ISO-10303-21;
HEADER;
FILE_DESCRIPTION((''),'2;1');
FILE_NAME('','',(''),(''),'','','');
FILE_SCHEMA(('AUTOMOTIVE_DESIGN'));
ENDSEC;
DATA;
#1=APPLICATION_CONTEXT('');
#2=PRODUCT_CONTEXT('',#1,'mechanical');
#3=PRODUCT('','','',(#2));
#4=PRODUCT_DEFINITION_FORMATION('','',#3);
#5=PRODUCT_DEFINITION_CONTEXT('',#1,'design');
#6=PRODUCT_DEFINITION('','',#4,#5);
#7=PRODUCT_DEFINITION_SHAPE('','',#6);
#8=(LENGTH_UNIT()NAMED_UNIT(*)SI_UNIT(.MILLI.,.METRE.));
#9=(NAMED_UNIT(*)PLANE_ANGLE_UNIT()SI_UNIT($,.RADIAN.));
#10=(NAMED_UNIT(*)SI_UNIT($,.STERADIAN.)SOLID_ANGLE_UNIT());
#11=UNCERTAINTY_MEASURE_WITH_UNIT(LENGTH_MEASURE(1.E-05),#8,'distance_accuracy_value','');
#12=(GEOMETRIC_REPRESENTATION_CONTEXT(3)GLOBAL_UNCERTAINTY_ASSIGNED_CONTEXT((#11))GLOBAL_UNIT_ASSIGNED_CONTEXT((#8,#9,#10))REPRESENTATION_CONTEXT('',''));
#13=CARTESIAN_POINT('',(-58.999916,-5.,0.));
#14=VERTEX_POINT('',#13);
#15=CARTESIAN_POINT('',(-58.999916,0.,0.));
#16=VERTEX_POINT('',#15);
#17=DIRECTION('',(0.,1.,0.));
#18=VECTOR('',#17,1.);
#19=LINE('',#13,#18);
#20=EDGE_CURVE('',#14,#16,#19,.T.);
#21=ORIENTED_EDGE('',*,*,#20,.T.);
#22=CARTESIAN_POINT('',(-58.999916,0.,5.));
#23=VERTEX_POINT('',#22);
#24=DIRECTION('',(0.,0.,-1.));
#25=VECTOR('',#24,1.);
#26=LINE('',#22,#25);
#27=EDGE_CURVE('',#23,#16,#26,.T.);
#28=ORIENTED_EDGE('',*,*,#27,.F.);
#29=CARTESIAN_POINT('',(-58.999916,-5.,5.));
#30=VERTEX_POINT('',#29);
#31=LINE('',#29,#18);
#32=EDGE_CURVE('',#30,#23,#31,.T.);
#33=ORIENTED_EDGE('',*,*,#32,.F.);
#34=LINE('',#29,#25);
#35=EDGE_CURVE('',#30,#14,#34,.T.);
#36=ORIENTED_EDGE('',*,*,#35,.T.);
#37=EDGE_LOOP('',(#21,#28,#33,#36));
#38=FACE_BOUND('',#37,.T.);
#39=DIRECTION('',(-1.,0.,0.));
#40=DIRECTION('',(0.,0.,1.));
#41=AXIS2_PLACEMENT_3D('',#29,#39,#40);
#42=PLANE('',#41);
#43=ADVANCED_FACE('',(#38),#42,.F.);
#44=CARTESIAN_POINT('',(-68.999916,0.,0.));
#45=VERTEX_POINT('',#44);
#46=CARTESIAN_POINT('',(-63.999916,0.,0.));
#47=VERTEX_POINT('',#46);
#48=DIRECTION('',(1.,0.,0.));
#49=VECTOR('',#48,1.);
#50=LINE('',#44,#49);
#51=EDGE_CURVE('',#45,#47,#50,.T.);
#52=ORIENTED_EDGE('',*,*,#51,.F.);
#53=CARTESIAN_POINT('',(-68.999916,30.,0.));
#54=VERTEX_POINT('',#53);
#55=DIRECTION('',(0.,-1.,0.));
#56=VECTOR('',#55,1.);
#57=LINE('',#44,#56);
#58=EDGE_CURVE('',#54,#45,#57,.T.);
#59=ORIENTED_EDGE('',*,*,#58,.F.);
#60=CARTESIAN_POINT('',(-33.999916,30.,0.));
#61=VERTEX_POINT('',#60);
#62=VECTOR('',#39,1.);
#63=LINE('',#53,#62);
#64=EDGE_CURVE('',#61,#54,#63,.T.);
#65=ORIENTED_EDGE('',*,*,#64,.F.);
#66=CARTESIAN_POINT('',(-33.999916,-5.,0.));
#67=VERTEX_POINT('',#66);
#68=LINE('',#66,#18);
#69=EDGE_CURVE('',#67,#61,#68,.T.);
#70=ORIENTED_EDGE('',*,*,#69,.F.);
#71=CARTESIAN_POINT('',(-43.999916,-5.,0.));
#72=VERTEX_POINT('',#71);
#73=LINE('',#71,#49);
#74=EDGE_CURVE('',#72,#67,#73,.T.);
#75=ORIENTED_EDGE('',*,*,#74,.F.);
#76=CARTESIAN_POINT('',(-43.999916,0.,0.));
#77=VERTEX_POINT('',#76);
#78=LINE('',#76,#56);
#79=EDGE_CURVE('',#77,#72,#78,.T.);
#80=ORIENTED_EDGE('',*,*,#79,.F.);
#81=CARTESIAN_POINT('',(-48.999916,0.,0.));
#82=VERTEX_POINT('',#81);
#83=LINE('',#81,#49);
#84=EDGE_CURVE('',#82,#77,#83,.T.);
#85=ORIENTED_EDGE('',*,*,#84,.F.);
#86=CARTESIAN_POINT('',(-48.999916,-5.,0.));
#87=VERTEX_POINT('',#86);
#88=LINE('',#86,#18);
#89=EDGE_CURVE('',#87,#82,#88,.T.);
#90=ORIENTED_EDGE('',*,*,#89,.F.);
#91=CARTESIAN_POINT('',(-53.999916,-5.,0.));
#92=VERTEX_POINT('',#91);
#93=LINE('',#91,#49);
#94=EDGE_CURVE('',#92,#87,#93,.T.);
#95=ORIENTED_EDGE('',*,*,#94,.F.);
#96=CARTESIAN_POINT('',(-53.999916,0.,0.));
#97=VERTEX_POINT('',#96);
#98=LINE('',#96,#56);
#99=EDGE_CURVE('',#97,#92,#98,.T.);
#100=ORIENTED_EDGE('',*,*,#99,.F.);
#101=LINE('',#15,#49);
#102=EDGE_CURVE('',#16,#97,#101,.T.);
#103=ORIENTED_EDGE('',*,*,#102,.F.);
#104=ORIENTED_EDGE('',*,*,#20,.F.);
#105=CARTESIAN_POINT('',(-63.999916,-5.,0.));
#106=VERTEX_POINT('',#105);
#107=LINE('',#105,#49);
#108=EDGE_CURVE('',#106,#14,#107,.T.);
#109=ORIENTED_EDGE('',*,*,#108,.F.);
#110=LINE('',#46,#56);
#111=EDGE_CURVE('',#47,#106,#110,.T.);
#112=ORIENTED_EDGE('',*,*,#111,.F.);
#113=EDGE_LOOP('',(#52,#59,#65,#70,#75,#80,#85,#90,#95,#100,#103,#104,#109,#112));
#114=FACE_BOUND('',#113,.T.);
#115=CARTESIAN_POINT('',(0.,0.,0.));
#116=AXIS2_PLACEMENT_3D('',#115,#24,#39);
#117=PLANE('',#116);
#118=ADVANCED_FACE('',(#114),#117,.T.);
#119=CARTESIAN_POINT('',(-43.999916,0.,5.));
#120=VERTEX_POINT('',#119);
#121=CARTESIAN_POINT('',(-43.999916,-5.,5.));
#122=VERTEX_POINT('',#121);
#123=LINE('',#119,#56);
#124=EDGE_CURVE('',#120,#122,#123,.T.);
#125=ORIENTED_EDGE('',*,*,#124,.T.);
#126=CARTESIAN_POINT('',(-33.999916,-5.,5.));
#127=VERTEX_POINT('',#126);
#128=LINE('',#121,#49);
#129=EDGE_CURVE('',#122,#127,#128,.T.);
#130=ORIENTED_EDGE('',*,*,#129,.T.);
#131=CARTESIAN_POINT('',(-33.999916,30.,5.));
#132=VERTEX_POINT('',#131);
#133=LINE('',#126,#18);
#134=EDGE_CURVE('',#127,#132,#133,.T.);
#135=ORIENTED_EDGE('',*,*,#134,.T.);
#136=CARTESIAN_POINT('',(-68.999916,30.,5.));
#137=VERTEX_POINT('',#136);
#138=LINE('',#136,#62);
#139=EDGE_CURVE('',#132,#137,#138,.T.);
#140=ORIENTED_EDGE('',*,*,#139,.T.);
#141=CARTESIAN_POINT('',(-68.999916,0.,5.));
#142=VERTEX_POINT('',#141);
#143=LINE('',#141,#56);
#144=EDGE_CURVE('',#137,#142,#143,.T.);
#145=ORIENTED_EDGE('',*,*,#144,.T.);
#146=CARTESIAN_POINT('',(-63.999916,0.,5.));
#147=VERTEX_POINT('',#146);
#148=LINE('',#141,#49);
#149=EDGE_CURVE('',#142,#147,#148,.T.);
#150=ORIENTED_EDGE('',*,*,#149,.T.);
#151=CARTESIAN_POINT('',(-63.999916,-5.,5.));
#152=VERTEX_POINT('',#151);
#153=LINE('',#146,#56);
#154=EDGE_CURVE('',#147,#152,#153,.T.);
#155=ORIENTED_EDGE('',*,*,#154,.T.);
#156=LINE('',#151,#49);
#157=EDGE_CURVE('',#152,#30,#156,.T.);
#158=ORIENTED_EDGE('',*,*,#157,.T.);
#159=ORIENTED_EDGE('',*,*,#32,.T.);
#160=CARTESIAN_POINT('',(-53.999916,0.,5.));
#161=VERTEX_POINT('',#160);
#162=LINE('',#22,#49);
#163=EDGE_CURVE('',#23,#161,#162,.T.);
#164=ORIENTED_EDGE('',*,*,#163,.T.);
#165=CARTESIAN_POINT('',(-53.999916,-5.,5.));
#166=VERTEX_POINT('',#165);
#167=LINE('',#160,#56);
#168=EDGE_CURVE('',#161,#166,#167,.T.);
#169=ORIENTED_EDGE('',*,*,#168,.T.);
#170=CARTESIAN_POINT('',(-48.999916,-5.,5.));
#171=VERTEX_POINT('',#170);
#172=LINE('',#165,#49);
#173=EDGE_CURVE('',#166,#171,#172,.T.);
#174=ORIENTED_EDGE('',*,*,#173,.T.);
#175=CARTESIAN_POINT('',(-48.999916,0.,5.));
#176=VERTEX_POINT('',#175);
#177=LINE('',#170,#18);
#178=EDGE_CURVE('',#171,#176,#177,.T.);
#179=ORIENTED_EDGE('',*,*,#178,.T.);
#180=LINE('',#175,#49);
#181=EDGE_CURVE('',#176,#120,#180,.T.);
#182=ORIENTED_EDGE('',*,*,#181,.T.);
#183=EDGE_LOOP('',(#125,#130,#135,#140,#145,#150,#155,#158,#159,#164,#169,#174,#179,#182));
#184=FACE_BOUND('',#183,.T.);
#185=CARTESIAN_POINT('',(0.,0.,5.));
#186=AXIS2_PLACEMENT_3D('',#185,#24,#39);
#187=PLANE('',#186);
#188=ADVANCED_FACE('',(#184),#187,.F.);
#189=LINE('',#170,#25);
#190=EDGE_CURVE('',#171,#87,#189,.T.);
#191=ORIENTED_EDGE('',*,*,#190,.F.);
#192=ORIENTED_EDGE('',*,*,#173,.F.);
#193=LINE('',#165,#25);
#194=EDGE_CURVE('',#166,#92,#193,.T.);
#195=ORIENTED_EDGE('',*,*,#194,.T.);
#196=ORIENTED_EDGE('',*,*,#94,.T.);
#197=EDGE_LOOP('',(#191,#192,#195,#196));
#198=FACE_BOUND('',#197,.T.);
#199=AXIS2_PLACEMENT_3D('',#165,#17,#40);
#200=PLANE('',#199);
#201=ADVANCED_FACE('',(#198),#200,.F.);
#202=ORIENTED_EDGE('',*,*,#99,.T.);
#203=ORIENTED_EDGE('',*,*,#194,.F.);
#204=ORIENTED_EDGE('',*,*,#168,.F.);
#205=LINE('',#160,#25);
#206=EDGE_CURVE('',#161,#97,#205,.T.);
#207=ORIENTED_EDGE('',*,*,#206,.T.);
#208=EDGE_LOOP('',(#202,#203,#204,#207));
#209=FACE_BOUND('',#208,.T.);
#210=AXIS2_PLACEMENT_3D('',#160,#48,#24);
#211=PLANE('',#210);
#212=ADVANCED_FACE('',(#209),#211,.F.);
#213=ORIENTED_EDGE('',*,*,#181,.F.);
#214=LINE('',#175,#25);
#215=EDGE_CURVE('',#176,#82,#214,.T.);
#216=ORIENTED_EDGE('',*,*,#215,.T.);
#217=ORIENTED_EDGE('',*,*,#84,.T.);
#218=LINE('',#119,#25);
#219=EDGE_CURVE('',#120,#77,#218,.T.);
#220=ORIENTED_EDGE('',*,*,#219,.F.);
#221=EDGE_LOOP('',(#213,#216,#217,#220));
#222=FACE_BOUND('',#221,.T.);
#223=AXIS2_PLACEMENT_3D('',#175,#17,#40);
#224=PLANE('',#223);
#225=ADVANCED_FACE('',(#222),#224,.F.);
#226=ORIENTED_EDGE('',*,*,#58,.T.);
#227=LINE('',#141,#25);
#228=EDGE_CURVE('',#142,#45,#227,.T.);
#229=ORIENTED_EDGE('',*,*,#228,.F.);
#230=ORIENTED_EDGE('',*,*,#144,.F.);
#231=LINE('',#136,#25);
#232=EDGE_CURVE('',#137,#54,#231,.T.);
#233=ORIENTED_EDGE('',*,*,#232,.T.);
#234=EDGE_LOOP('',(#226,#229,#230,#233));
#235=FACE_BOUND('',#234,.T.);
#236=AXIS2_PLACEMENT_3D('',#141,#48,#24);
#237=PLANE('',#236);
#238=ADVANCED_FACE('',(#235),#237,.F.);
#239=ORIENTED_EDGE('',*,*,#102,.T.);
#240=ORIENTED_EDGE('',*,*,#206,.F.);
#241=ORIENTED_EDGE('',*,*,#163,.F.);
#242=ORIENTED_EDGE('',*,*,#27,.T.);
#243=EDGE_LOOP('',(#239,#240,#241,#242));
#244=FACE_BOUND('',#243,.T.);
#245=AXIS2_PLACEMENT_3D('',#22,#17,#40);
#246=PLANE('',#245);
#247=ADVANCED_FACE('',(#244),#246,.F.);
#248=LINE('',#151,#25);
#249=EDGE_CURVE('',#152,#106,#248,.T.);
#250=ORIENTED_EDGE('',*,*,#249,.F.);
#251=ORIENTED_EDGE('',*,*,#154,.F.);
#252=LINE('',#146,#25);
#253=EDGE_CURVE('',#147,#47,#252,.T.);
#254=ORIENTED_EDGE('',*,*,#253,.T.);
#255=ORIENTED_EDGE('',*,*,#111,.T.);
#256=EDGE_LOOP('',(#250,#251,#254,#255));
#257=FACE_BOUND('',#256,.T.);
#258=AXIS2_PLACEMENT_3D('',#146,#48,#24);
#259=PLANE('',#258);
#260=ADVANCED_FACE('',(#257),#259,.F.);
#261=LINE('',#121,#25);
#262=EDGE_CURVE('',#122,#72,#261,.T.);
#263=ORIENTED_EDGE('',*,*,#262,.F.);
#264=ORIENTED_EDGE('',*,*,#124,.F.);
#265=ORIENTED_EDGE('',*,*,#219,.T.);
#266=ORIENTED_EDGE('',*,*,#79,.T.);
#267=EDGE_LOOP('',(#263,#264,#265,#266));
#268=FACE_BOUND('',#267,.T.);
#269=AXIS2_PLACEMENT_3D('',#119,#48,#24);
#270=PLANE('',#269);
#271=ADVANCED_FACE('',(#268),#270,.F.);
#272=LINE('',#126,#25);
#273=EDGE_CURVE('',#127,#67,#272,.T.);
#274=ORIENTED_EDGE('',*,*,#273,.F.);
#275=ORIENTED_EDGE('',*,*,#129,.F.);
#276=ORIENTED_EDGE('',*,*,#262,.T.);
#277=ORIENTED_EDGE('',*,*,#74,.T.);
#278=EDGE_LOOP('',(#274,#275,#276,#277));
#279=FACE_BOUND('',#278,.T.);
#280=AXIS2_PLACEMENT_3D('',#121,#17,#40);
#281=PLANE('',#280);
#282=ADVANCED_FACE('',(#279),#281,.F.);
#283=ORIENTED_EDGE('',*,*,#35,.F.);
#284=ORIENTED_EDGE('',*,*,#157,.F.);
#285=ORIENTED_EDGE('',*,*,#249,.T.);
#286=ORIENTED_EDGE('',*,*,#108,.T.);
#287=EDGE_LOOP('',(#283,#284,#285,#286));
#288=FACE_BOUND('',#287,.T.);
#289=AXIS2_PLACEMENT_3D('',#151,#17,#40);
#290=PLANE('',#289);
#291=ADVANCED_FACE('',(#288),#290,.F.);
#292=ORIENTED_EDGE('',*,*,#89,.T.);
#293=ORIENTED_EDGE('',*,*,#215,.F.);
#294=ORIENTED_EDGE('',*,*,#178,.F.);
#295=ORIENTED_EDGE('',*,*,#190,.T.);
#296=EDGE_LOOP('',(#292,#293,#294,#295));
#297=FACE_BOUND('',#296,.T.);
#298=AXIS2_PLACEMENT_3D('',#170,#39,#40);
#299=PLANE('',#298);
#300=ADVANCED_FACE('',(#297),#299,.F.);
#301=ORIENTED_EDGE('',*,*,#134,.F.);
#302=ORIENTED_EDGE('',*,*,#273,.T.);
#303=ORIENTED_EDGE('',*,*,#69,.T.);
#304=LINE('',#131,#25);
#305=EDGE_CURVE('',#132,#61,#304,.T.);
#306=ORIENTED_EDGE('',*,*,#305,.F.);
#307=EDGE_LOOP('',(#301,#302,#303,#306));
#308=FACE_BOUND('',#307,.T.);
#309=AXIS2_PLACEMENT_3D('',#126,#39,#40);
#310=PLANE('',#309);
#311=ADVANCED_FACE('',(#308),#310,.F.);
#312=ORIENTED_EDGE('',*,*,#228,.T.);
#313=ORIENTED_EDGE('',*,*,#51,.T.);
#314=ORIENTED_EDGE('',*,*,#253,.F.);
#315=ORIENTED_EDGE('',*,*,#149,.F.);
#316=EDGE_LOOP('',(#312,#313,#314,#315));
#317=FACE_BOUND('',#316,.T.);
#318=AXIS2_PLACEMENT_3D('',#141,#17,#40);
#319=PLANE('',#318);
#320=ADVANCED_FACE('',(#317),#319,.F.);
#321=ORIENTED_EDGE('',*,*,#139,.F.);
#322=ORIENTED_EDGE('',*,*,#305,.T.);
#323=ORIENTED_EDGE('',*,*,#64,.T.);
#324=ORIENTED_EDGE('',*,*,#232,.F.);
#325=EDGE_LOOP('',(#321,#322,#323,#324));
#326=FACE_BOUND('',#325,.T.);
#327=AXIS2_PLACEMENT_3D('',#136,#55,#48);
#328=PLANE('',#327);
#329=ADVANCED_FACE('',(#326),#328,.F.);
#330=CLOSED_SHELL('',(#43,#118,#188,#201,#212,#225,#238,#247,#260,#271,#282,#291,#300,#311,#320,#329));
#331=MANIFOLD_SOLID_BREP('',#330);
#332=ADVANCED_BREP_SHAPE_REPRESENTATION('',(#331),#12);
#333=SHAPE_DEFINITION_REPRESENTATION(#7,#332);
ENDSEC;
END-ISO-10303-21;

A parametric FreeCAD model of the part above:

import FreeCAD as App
import Part
import Sketcher

V = App.Vector

doc = App.newDocument("Part")
params = doc.addObject("Spreadsheet::Sheet", "Params")
for row, (alias, value) in enumerate([
    ("sketch1_width", "5 mm"),
    ("sketch1_width2", "10 mm"),
    ("pad1_length", "5 mm"),
], start=1):
    params.set(f"A{row}", alias)
    params.set(f"B{row}", "=" + value)
    params.setAlias(f"B{row}", alias)

body = doc.addObject("PartDesign::Body", "Body")

# Sketch on XY plane
sketch1 = body.newObject("Sketcher::SketchObject", "Sketch")
sketch1.AttachmentSupport = (doc.getObject("XY_Plane"), [""])
sketch1.MapMode = "FlatFace"
sketch1.addGeometry([
    Part.LineSegment(V(-68.999916, 0, 0), V(-63.999916, 0, 0)),  # 0
    Part.LineSegment(V(-63.999916, 0, 0), V(-63.999916, -5, 0)),  # 1
    Part.LineSegment(V(-63.999916, -5, 0), V(-58.999916, -5, 0)),  # 2
    Part.LineSegment(V(-58.999916, -5, 0), V(-58.999916, 0, 0)),  # 3
    Part.LineSegment(V(-58.999916, 0, 0), V(-53.999916, 0, 0)),  # 4
    Part.LineSegment(V(-53.999916, 0, 0), V(-53.999916, -5, 0)),  # 5
    Part.LineSegment(V(-53.999916, -5, 0), V(-48.999916, -5, 0)),  # 6
    Part.LineSegment(V(-48.999916, -5, 0), V(-48.999916, 0, 0)),  # 7
    Part.LineSegment(V(-48.999916, 0, 0), V(-43.999916, 0, 0)),  # 8
    Part.LineSegment(V(-43.999916, 0, 0), V(-43.999916, -5, 0)),  # 9
    Part.LineSegment(V(-43.999916, -5, 0), V(-33.999916, -5, 0)),  # 10
    Part.LineSegment(V(-33.999916, -5, 0), V(-33.999916, 30, 0)),  # 11
    Part.LineSegment(V(-33.999916, 30, 0), V(-68.999916, 30, 0)),  # 12
    Part.LineSegment(V(-68.999916, 30, 0), V(-68.999916, 0, 0)),  # 13
], False)
sketch1.addConstraint([
    Sketcher.Constraint("Coincident", 0, 2, 1, 1),
    Sketcher.Constraint("Coincident", 1, 2, 2, 1),
    Sketcher.Constraint("Coincident", 2, 2, 3, 1),
    Sketcher.Constraint("Coincident", 3, 2, 4, 1),
    Sketcher.Constraint("Coincident", 4, 2, 5, 1),
    Sketcher.Constraint("Coincident", 5, 2, 6, 1),
    Sketcher.Constraint("Coincident", 6, 2, 7, 1),
    Sketcher.Constraint("Coincident", 7, 2, 8, 1),
    Sketcher.Constraint("Coincident", 8, 2, 9, 1),
    Sketcher.Constraint("Coincident", 9, 2, 10, 1),
    Sketcher.Constraint("Coincident", 10, 2, 11, 1),
    Sketcher.Constraint("Coincident", 11, 2, 12, 1),
    Sketcher.Constraint("Coincident", 12, 2, 13, 1),
    Sketcher.Constraint("Coincident", 13, 2, 0, 1),
    Sketcher.Constraint("Horizontal", 0),
    Sketcher.Constraint("Vertical", 1),
    Sketcher.Constraint("Horizontal", 2),
    Sketcher.Constraint("Vertical", 3),
    Sketcher.Constraint("Horizontal", 4),
    Sketcher.Constraint("Vertical", 5),
    Sketcher.Constraint("Horizontal", 6),
    Sketcher.Constraint("Vertical", 7),
    Sketcher.Constraint("Horizontal", 8),
    Sketcher.Constraint("Vertical", 9),
    Sketcher.Constraint("Horizontal", 10),
    Sketcher.Constraint("Vertical", 11),
    Sketcher.Constraint("Horizontal", 12),
    Sketcher.Constraint("Vertical", 13),
    Sketcher.Constraint("PointOnObject", 0, 2, -1),
    Sketcher.Constraint("PointOnObject", 3, 2, -1),
    Sketcher.Constraint("PointOnObject", 7, 2, -1),
    Sketcher.Constraint("Horizontal", 2, 2, 5, 2),
    Sketcher.Constraint("Horizontal", 6, 2, 9, 2),
    Sketcher.Constraint("Equal", 0, 2),
    Sketcher.Constraint("Equal", 2, 4),
    Sketcher.Constraint("Equal", 4, 6),
    Sketcher.Constraint("Equal", 6, 8),
    Sketcher.Constraint("Equal", 8, 1),
    Sketcher.Constraint("Equal", 12, 11),
    Sketcher.Constraint("DistanceX", 0, 1, 0, 2, 5.0),
    Sketcher.Constraint("DistanceX", 10, 1, 10, 2, 10.0),
    Sketcher.Constraint("DistanceX", 0, 2, -1, 1, 63.999916),
])
sketch1.setExpression("Constraints[39]", "Params.sketch1_width")
sketch1.setExpression("Constraints[40]", "Params.sketch1_width2")
pad1 = body.newObject("PartDesign::Pad", "Pad")
pad1.Profile = sketch1
pad1.setExpression("Length", "Params.pad1_length")

doc.recompute()
